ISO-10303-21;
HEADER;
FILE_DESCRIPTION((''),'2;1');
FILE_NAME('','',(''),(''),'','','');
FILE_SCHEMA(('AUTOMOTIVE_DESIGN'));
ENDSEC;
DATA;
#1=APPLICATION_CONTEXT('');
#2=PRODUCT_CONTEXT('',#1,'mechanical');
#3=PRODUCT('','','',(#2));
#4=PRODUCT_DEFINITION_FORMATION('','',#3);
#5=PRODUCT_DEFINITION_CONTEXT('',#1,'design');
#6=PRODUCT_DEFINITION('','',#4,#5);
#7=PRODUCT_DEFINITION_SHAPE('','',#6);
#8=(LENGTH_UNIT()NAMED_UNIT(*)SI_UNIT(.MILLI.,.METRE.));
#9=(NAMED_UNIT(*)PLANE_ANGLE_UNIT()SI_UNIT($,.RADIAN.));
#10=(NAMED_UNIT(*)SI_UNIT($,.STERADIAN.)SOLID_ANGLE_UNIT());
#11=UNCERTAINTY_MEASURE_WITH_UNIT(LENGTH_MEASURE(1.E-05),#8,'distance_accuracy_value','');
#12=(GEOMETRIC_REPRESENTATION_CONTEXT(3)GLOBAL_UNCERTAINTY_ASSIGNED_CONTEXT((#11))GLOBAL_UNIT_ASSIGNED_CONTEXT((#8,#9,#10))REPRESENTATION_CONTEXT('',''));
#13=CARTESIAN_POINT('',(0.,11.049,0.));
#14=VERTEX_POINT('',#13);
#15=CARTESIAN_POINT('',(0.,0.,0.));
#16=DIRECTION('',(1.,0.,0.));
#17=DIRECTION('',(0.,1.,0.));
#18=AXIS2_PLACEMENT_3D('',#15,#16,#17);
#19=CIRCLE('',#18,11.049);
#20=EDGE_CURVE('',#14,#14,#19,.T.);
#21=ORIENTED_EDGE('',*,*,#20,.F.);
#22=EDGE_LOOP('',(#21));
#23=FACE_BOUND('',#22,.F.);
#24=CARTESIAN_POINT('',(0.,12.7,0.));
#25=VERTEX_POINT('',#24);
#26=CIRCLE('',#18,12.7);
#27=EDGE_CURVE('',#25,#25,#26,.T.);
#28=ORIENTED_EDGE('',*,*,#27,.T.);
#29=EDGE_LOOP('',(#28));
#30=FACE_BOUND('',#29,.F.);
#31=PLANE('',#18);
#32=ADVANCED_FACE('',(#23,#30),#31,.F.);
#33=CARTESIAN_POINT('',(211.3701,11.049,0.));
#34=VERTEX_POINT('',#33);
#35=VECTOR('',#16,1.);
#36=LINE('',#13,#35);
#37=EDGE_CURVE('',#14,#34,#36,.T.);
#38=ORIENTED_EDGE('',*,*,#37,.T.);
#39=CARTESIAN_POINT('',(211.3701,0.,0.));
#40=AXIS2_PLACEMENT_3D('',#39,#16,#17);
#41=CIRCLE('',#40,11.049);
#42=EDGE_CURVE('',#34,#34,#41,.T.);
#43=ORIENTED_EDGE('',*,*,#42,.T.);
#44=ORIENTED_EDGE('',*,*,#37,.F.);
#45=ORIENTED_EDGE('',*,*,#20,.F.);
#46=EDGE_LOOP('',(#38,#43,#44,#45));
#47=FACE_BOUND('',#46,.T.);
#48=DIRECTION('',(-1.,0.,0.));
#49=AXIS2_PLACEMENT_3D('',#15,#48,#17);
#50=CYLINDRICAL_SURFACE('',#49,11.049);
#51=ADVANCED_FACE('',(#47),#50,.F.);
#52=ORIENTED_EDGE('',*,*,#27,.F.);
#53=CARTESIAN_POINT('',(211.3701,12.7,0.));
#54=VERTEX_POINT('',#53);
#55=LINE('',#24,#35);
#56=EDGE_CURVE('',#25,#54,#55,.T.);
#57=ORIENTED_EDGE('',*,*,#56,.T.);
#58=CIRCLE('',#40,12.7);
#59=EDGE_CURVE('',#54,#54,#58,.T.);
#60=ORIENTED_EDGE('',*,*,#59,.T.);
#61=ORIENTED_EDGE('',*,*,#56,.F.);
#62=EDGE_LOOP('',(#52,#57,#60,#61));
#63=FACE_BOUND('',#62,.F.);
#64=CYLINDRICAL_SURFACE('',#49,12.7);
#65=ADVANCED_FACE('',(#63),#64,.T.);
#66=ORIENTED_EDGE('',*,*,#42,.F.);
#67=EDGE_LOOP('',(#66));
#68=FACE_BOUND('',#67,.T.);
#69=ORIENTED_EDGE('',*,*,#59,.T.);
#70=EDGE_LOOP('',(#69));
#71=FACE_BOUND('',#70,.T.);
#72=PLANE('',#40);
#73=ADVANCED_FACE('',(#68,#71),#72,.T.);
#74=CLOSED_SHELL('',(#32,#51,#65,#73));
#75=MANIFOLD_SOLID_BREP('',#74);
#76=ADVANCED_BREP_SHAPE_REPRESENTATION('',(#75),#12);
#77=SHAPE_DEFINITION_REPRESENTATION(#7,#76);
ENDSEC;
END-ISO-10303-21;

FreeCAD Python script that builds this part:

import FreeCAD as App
import Part
import Sketcher
Q = App.Units.Quantity

doc = App.newDocument("Part")
body = doc.addObject("PartDesign::Body", "Body")

# Sketch on YZ plane
sketch1 = body.newObject("Sketcher::SketchObject", "Sketch")
sketch1.AttachmentSupport = (doc.getObject("YZ_Plane"), [""])
sketch1.MapMode = "FlatFace"
sketch1.addGeometry([
    Part.Circle(App.Vector(0, 0, 0), App.Vector(0, 0, 1), 13),
    Part.Circle(App.Vector(0, 0, 0), App.Vector(0, 0, 1), 11),
], False)
sketch1.addConstraint([
    Sketcher.Constraint("Coincident", 0, 3, -1, 1),
    Sketcher.Constraint("Coincident", 1, 3, -1, 1),
    Sketcher.Constraint("Diameter", 0, Q("1 in")),
    Sketcher.Constraint("Diameter", 1, Q("0.87 in")),
])
pad1 = body.newObject("PartDesign::Pad", "Pad")
pad1.Profile = sketch1
pad1.Length = 211.3701

doc.recompute()
